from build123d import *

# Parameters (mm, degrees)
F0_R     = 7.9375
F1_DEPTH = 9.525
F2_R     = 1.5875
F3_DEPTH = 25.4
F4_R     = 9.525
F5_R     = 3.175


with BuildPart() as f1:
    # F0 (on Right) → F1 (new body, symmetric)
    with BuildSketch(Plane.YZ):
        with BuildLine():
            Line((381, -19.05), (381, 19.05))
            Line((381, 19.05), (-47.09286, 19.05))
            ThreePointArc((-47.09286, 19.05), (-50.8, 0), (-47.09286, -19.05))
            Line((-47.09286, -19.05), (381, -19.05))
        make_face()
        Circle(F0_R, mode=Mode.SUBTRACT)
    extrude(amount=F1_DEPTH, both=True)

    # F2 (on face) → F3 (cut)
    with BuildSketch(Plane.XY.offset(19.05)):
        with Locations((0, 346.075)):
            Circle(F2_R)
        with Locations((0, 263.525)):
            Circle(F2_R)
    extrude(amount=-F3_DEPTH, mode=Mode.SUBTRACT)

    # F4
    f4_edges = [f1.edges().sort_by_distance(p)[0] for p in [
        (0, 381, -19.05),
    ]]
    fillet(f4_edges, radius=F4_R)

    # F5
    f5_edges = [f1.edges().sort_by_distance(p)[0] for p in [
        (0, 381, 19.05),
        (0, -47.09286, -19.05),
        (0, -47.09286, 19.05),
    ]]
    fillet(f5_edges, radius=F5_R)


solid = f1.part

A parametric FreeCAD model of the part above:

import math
import FreeCAD as App
import Part
import Sketcher
from FreeCAD import Vector
Q = App.Units.Quantity


def edges_at(feature, points):
    """Names of the edges that pass closest to the given points."""
    edges = feature.Shape.Edges
    near = lambda p: min(range(len(edges)), key=lambda i: edges[i].distToShape(Part.Vertex(*p))[0])
    return sorted({f"Edge{near(p) + 1}" for p in points})

doc = App.newDocument("Part")
params = doc.addObject("Spreadsheet::Sheet", "Params")
for row, (alias, value) in enumerate([
    ("sketch1_radius", "1.9999998 in"),
    ("sketch1_diameter", "0.625 in"),
    ("sketch1_height", "1.5 in"),
    ("pad1_length", "0.75 in"),
    ("sketch2_diameter", "0.125 in"),
    ("pocket1_length", "1 in"),
    ("fillet_radius", "0.375 in"),
    ("fillet2_radius", "0.125 in"),
], start=1):
    params.set(f"A{row}", alias)
    params.set(f"B{row}", "=" + value)
    params.setAlias(f"B{row}", alias)

body = doc.addObject("PartDesign::Body", "Body")

# Sketch on YZ plane
sketch1 = body.newObject("Sketcher::SketchObject", "Sketch")
sketch1.AttachmentSupport = (doc.getObject("YZ_Plane"), [""])
sketch1.MapMode = "FlatFace"
sketch1.addGeometry(Part.LineSegment(Vector(381, -19, 0), Vector(381, 19, 0)), False)
sketch1.addGeometry(Part.LineSegment(Vector(381, 19, 0), Vector(-47, 19, 0)), False)
sketch1.addGeometry(Part.ArcOfCircle(Part.Circle(Vector(0, 0, 0), Vector(0, 0, 1), 51), math.radians(158), math.radians(202)), False)
sketch1.addGeometry(Part.LineSegment(Vector(-47, -19, 0), Vector(381, -19, 0)), False)
sketch1.addGeometry(Part.Circle(Vector(0, 0, 0), Vector(0, 0, 1), 8), False)
sketch1.addConstraint(Sketcher.Constraint("Coincident", 0, 2, 1, 1))
sketch1.addConstraint(Sketcher.Constraint("Coincident", 1, 2, 2, 1))
sketch1.addConstraint(Sketcher.Constraint("Coincident", 2, 2, 3, 1))
sketch1.addConstraint(Sketcher.Constraint("Coincident", 3, 2, 0, 1))
sketch1.addConstraint(Sketcher.Constraint("Vertical", 0))
sketch1.addConstraint(Sketcher.Constraint("Horizontal", 1))
sketch1.addConstraint(Sketcher.Constraint("Horizontal", 3))
sketch1.addConstraint(Sketcher.Constraint("Coincident", 2, 3, -1, 1))
sketch1.addConstraint(Sketcher.Constraint("Coincident", 4, 3, -1, 1))
sketch1.addConstraint(Sketcher.Constraint("Vertical", 1, 2, 2, 2))
sketch1.addConstraint(Sketcher.Constraint("Radius", 2, Q("1.9999998 in")))
sketch1.addConstraint(Sketcher.Constraint("Diameter", 4, Q("0.625 in")))
sketch1.addConstraint(Sketcher.Constraint("DistanceY", 0, 1, 0, 2, Q("1.5 in")))
sketch1.addConstraint(Sketcher.Constraint("DistanceX", -1, 1, 0, 2, Q("15 in")))
sketch1.setExpression("Constraints[10]", "Params.sketch1_radius")
sketch1.setExpression("Constraints[11]", "Params.sketch1_diameter")
sketch1.setExpression("Constraints[12]", "Params.sketch1_height")
pad1 = body.newObject("PartDesign::Pad", "Pad")
pad1.Profile = sketch1
pad1.setExpression("Length", "Params.pad1_length")
pad1.Midplane = True

# Sketch on XY plane
sketch2 = body.newObject("Sketcher::SketchObject", "Sketch001")
sketch2.AttachmentSupport = (doc.getObject("XY_Plane"), [""])
sketch2.MapMode = "FlatFace"
sketch2.AttachmentOffset = App.Placement(Vector(0, 0, 0.75 * 25.4), App.Rotation())
sketch2.addGeometry(Part.Circle(Vector(0, 346.1, 0), Vector(0, 0, 1), 1.6), False)
sketch2.addGeometry(Part.Circle(Vector(0, 263.5, 0), Vector(0, 0, 1), 1.6), False)
sketch2.addConstraint(Sketcher.Constraint("Equal", 0, 1))
sketch2.addConstraint(Sketcher.Constraint("PointOnObject", 0, 3, -2))
sketch2.addConstraint(Sketcher.Constraint("PointOnObject", 1, 3, -2))
sketch2.addConstraint(Sketcher.Constraint("Diameter", 0, Q("0.125 in")))
sketch2.addConstraint(Sketcher.Constraint("DistanceY", 1, 3, 0, 3, Q("3.25 in")))
sketch2.addConstraint(Sketcher.Constraint("DistanceY", -1, 1, 0, 3, Q("13.625 in")))
sketch2.setExpression("Constraints[3]", "Params.sketch2_diameter")
pocket1 = body.newObject("PartDesign::Pocket", "Pocket")
pocket1.Profile = sketch2
pocket1.setExpression("Length", "Params.pocket1_length")
doc.recompute()

fillet = body.newObject("PartDesign::Fillet", "Fillet")
fillet.Base = (pocket1, edges_at(pocket1, [(0, 381, -19.05)]))
fillet.setExpression("Radius", "Params.fillet_radius")
doc.recompute()

fillet2 = body.newObject("PartDesign::Fillet", "Fillet001")
fillet2.Base = (fillet, edges_at(fillet, [(0, 381, 19.05), (0, -47.093, -19.05), (0, -47.093, 19.05)]))
fillet2.setExpression("Radius", "Params.fillet2_radius")

doc.recompute()
